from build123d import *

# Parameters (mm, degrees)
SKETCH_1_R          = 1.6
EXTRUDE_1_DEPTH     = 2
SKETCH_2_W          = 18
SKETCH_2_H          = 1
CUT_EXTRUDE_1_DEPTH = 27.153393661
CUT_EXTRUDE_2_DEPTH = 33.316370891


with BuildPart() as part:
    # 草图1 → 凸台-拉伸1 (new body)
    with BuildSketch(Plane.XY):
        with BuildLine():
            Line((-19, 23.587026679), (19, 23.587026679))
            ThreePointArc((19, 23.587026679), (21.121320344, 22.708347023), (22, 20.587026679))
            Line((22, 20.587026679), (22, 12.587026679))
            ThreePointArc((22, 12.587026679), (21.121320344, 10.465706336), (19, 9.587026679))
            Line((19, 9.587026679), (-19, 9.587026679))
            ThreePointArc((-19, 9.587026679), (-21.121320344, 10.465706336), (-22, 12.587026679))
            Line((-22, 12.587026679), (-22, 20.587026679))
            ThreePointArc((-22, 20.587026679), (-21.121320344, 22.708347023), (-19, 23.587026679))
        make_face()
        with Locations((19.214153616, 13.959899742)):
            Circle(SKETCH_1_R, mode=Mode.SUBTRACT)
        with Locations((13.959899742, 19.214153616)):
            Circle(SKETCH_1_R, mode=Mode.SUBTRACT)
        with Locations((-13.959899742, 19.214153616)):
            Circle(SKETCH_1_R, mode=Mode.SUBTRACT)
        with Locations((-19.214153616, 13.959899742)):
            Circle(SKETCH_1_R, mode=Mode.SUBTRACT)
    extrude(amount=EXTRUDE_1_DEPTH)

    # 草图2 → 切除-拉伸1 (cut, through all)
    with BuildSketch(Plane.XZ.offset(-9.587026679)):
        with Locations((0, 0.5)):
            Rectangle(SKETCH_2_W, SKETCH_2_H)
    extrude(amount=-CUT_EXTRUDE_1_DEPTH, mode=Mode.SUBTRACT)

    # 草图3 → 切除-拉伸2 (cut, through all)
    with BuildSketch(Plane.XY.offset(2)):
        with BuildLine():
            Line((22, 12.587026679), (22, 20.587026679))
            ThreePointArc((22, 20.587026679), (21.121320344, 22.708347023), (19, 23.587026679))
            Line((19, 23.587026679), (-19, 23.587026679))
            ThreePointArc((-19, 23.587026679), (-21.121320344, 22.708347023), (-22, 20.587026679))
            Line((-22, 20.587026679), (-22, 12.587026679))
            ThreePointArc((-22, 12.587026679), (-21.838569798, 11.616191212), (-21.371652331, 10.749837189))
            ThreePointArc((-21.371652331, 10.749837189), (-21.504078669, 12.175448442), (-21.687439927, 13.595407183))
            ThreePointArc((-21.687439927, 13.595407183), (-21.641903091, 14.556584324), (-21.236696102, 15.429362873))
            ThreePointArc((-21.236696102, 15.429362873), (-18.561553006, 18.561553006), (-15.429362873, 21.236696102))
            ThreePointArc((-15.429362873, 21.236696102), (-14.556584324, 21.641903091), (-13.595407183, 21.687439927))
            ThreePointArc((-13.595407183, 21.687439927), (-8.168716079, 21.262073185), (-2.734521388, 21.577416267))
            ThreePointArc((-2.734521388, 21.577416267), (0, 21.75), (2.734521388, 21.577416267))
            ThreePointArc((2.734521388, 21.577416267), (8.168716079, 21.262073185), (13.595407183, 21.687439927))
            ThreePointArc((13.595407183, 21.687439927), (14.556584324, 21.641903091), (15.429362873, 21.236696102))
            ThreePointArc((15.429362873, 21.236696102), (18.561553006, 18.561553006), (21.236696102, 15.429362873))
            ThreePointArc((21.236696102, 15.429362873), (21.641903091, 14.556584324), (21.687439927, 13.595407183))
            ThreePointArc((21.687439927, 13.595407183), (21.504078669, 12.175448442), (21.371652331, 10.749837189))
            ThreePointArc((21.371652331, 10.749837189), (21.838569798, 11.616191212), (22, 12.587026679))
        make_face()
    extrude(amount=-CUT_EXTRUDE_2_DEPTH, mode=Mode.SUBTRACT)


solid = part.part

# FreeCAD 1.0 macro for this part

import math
import FreeCAD as App
import Part
import Sketcher
from FreeCAD import Vector

doc = App.newDocument("Part")
body = doc.addObject("PartDesign::Body", "Body")

# Sketch on XY plane
sketch1 = body.newObject("Sketcher::SketchObject", "Sketch")
sketch1.AttachmentSupport = (doc.getObject("XY_Plane"), [""])
sketch1.MapMode = "FlatFace"
sketch1.addGeometry(Part.LineSegment(Vector(19, 23.6, 0), Vector(-19, 23.6, 0)), False)
sketch1.addGeometry(Part.ArcOfCircle(Part.Circle(Vector(-19, 20.6, 0), Vector(0, 0, 1), 3), math.radians(90), math.radians(180)), False)
sketch1.addGeometry(Part.LineSegment(Vector(-22, 20.6, 0), Vector(-22, 12.6, 0)), False)
sketch1.addGeometry(Part.ArcOfCircle(Part.Circle(Vector(-19, 12.6, 0), Vector(0, 0, 1), 3), math.radians(180), math.radians(270)), False)
sketch1.addGeometry(Part.LineSegment(Vector(-19, 9.6, 0), Vector(19, 9.6, 0)), False)
sketch1.addGeometry(Part.ArcOfCircle(Part.Circle(Vector(19, 12.6, 0), Vector(0, 0, 1), 3), math.radians(-90), math.radians(0)), False)
sketch1.addGeometry(Part.LineSegment(Vector(22, 12.6, 0), Vector(22, 20.6, 0)), False)
sketch1.addGeometry(Part.ArcOfCircle(Part.Circle(Vector(19, 20.6, 0), Vector(0, 0, 1), 3), math.radians(0), math.radians(90)), False)
sketch1.addGeometry(Part.Circle(Vector(19.2, 14, 0), Vector(0, 0, 1), 1.6), False)
sketch1.addGeometry(Part.Circle(Vector(-19.2, 14, 0), Vector(0, 0, 1), 1.6), False)
sketch1.addGeometry(Part.Circle(Vector(14, 19.2, 0), Vector(0, 0, 1), 1.6), False)
sketch1.addGeometry(Part.Circle(Vector(-14, 19.2, 0), Vector(0, 0, 1), 1.6), False)
sketch1.addConstraint(Sketcher.Constraint("Tangent", 0, 2, 1, 1))
sketch1.addConstraint(Sketcher.Constraint("Tangent", 1, 2, 2, 1))
sketch1.addConstraint(Sketcher.Constraint("Tangent", 2, 2, 3, 1))
sketch1.addConstraint(Sketcher.Constraint("Tangent", 3, 2, 4, 1))
sketch1.addConstraint(Sketcher.Constraint("Tangent", 4, 2, 5, 1))
sketch1.addConstraint(Sketcher.Constraint("Tangent", 5, 2, 6, 1))
sketch1.addConstraint(Sketcher.Constraint("Tangent", 6, 2, 7, 1))
sketch1.addConstraint(Sketcher.Constraint("Tangent", 7, 2, 0, 1))
sketch1.addConstraint(Sketcher.Constraint("Horizontal", 0))
sketch1.addConstraint(Sketcher.Constraint("Vertical", 2))
sketch1.addConstraint(Sketcher.Constraint("Horizontal", 4))
sketch1.addConstraint(Sketcher.Constraint("Vertical", 6))
sketch1.addConstraint(Sketcher.Constraint("Equal", 1, 3))
sketch1.addConstraint(Sketcher.Constraint("Equal", 3, 5))
sketch1.addConstraint(Sketcher.Constraint("Equal", 5, 7))
sketch1.addConstraint(Sketcher.Constraint("Equal", 8, 9))
sketch1.addConstraint(Sketcher.Constraint("Equal", 9, 10))
sketch1.addConstraint(Sketcher.Constraint("Equal", 10, 11))
sketch1.addConstraint(Sketcher.Constraint("Symmetric", 8, 3, 9, 3, -2))
sketch1.addConstraint(Sketcher.Constraint("Symmetric", 10, 3, 11, 3, -2))
sketch1.addConstraint(Sketcher.Constraint("Radius", 1, 3.0))
sketch1.addConstraint(Sketcher.Constraint("Diameter", 8, 3.2))
sketch1.addConstraint(Sketcher.Constraint("DistanceX", 0, 2, 0, 1, 38.0))
sketch1.addConstraint(Sketcher.Constraint("DistanceY", 2, 2, 2, 1, 8.0))
sketch1.addConstraint(Sketcher.Constraint("DistanceX", 1, 3, -1, 1, 19.0))
sketch1.addConstraint(Sketcher.Constraint("DistanceY", -1, 1, 8, 3, 13.9599))
sketch1.addConstraint(Sketcher.Constraint("DistanceX", -1, 1, 10, 3, 13.9599))
sketch1.addConstraint(Sketcher.Constraint("DistanceY", -1, 1, 1, 3, 20.587027))
sketch1.addConstraint(Sketcher.Constraint("DistanceX", -1, 1, 8, 3, 19.214154))
sketch1.addConstraint(Sketcher.Constraint("DistanceY", -1, 1, 10, 3, 19.214154))
pad1 = body.newObject("PartDesign::Pad", "Pad")
pad1.Profile = sketch1
pad1.Length = 2

# Sketch on XZ plane
sketch2 = body.newObject("Sketcher::SketchObject", "Sketch001")
sketch2.AttachmentSupport = (doc.getObject("XZ_Plane"), [""])
sketch2.MapMode = "FlatFace"
sketch2.AttachmentOffset = App.Placement(Vector(0, 0, -9.587027), App.Rotation())
sketch2.addGeometry(Part.LineSegment(Vector(-9, 1, 0), Vector(-9, 0, 0)), False)
sketch2.addGeometry(Part.LineSegment(Vector(-9, 0, 0), Vector(9, 0, 0)), False)
sketch2.addGeometry(Part.LineSegment(Vector(9, 0, 0), Vector(9, 1, 0)), False)
sketch2.addGeometry(Part.LineSegment(Vector(9, 1, 0), Vector(-9, 1, 0)), False)
sketch2.addConstraint(Sketcher.Constraint("Coincident", 0, 2, 1, 1))
sketch2.addConstraint(Sketcher.Constraint("Coincident", 1, 2, 2, 1))
sketch2.addConstraint(Sketcher.Constraint("Coincident", 2, 2, 3, 1))
sketch2.addConstraint(Sketcher.Constraint("Coincident", 3, 2, 0, 1))
sketch2.addConstraint(Sketcher.Constraint("Vertical", 0))
sketch2.addConstraint(Sketcher.Constraint("Horizontal", 1))
sketch2.addConstraint(Sketcher.Constraint("Vertical", 2))
sketch2.addConstraint(Sketcher.Constraint("Horizontal", 3))
sketch2.addConstraint(Sketcher.Constraint("Symmetric", 0, 2, 1, 2, -1, 1))
sketch2.addConstraint(Sketcher.Constraint("DistanceX", 1, 1, 1, 2, 18.0))
sketch2.addConstraint(Sketcher.Constraint("DistanceY", 0, 2, 0, 1, 1.0))
pocket1 = body.newObject("PartDesign::Pocket", "Pocket")
pocket1.Profile = sketch2
pocket1.Type = "ThroughAll"

# Sketch on XY plane
sketch3 = body.newObject("Sketcher::SketchObject", "Sketch002")
sketch3.AttachmentSupport = (doc.getObject("XY_Plane"), [""])
sketch3.MapMode = "FlatFace"
sketch3.AttachmentOffset = App.Placement(Vector(0, 0, 2), App.Rotation())
sketch3.addGeometry(Part.LineSegment(Vector(22, 12.6, 0), Vector(22, 20.6, 0)), False)
sketch3.addGeometry(Part.ArcOfCircle(Part.Circle(Vector(19, 20.6, 0), Vector(0, 0, 1), 3), math.radians(0), math.radians(90)), False)
sketch3.addGeometry(Part.LineSegment(Vector(19, 23.6, 0), Vector(-19, 23.6, 0)), False)
sketch3.addGeometry(Part.ArcOfCircle(Part.Circle(Vector(-19, 20.6, 0), Vector(0, 0, 1), 3), math.radians(90), math.radians(180)), False)
sketch3.addGeometry(Part.LineSegment(Vector(-22, 20.6, 0), Vector(-22, 12.6, 0)), False)
sketch3.addGeometry(Part.ArcOfCircle(Part.Circle(Vector(-19, 12.6, 0), Vector(0, 0, 1), 3), math.radians(180), math.radians(218)), False)
sketch3.addGeometry(Part.ArcOfCircle(Part.Circle(Vector(-61.3, 7.8, 0), Vector(0, 0, 1), 40), math.radians(4.28), math.radians(8.38)), False)
sketch3.addGeometry(Part.ArcOfCircle(Part.Circle(Vector(-19.2, 14, 0), Vector(0, 0, 1), 2.5), math.radians(144), math.radians(188)), False)
sketch3.addGeometry(Part.ArcOfCircle(Part.Circle(Vector(0, 0, 0), Vector(0, 0, 1), 26.3), math.radians(126), math.radians(144)), False)
sketch3.addGeometry(Part.ArcOfCircle(Part.Circle(Vector(-14, 19.2, 0), Vector(0, 0, 1), 2.5), math.radians(82), math.radians(126)), False)
sketch3.addGeometry(Part.ArcOfCircle(Part.Circle(Vector(-7.8, 61.3, 0), Vector(0, 0, 1), 40), math.radians(-98.38), math.radians(-82.78)), False)
sketch3.addGeometry(Part.ArcOfCircle(Part.Circle(Vector(0, 0, 0), Vector(0, 0, 1), 21.7), math.radians(82.78), math.radians(97.22)), False)
sketch3.addGeometry(Part.ArcOfCircle(Part.Circle(Vector(7.8, 61.3, 0), Vector(0, 0, 1), 40), math.radians(-97.22), math.radians(-81.62)), False)
sketch3.addGeometry(Part.ArcOfCircle(Part.Circle(Vector(14, 19.2, 0), Vector(0, 0, 1), 2.5), math.radians(54), math.radians(98)), False)
sketch3.addGeometry(Part.ArcOfCircle(Part.Circle(Vector(0, 0, 0), Vector(0, 0, 1), 26.3), math.radians(36), math.radians(54)), False)
sketch3.addGeometry(Part.ArcOfCircle(Part.Circle(Vector(19.2, 14, 0), Vector(0, 0, 1), 2.5), math.radians(-8), math.radians(36)), False)
sketch3.addGeometry(Part.ArcOfCircle(Part.Circle(Vector(61.3, 7.8, 0), Vector(0, 0, 1), 40), math.radians(171.62), math.radians(175.72)), False)
sketch3.addGeometry(Part.ArcOfCircle(Part.Circle(Vector(19, 12.6, 0), Vector(0, 0, 1), 3), math.radians(-38), math.radians(0)), False)
sketch3.addConstraint(Sketcher.Constraint("Tangent", 0, 2, 1, 1))
sketch3.addConstraint(Sketcher.Constraint("Tangent", 1, 2, 2, 1))
sketch3.addConstraint(Sketcher.Constraint("Tangent", 2, 2, 3, 1))
sketch3.addConstraint(Sketcher.Constraint("Tangent", 3, 2, 4, 1))
sketch3.addConstraint(Sketcher.Constraint("Tangent", 4, 2, 5, 1))
sketch3.addConstraint(Sketcher.Constraint("Coincident", 5, 2, 6, 1))
sketch3.addConstraint(Sketcher.Constraint("Tangent", 6, 2, 7, 2))
sketch3.addConstraint(Sketcher.Constraint("Tangent", 7, 1, 8, 2))
sketch3.addConstraint(Sketcher.Constraint("Tangent", 8, 1, 9, 2))
sketch3.addConstraint(Sketcher.Constraint("Tangent", 9, 1, 10, 1))
sketch3.addConstraint(Sketcher.Constraint("Tangent", 10, 2, 11, 2))
sketch3.addConstraint(Sketcher.Constraint("Tangent", 11, 1, 12, 1))
sketch3.addConstraint(Sketcher.Constraint("Tangent", 12, 2, 13, 2))
sketch3.addConstraint(Sketcher.Constraint("Tangent", 13, 1, 14, 2))
sketch3.addConstraint(Sketcher.Constraint("Tangent", 14, 1, 15, 2))
sketch3.addConstraint(Sketcher.Constraint("Tangent", 15, 1, 16, 1))
sketch3.addConstraint(Sketcher.Constraint("Coincident", 16, 2, 17, 1))
sketch3.addConstraint(Sketcher.Constraint("Tangent", 17, 2, 0, 1))
sketch3.addConstraint(Sketcher.Constraint("Vertical", 0))
sketch3.addConstraint(Sketcher.Constraint("Horizontal", 2))
sketch3.addConstraint(Sketcher.Constraint("Vertical", 4))
sketch3.addConstraint(Sketcher.Constraint("Coincident", 8, 3, -1, 1))
sketch3.addConstraint(Sketcher.Constraint("Coincident", 11, 3, -1, 1))
sketch3.addConstraint(Sketcher.Constraint("Coincident", 14, 3, -1, 1))
sketch3.addConstraint(Sketcher.Constraint("Equal", 1, 3))
sketch3.addConstraint(Sketcher.Constraint("Equal", 3, 5))
sketch3.addConstraint(Sketcher.Constraint("Equal", 7, 9))
sketch3.addConstraint(Sketcher.Constraint("Equal", 6, 10))
sketch3.addConstraint(Sketcher.Constraint("Equal", 10, 12))
sketch3.addConstraint(Sketcher.Constraint("Equal", 9, 13))
sketch3.addConstraint(Sketcher.Constraint("Equal", 8, 14))
sketch3.addConstraint(Sketcher.Constraint("Equal", 13, 15))
sketch3.addConstraint(Sketcher.Constraint("Equal", 12, 16))
sketch3.addConstraint(Sketcher.Constraint("Equal", 5, 17))
sketch3.addConstraint(Sketcher.Constraint("Symmetric", 6, 3, 16, 3, -2))
sketch3.addConstraint(Sketcher.Constraint("Symmetric", 5, 3, 17, 3, -2))
sketch3.addConstraint(Sketcher.Constraint("Horizontal", 10, 3, 12, 3))
sketch3.addConstraint(Sketcher.Constraint("Radius", 1, 3.0))
sketch3.addConstraint(Sketcher.Constraint("Radius", 6, 40.0))
sketch3.addConstraint(Sketcher.Constraint("Radius", 7, 2.5))
sketch3.addConstraint(Sketcher.Constraint("DistanceX", 2, 2, 2, 1, 38.0))
sketch3.addConstraint(Sketcher.Constraint("DistanceY", 0, 1, 0, 2, 8.0))
sketch3.addConstraint(Sketcher.Constraint("Radius", 8, 26.25))
sketch3.addConstraint(Sketcher.Constraint("Radius", 11, 21.75))
sketch3.addConstraint(Sketcher.Constraint("DistanceY", -1, 1, 7, 3, 13.9599))
sketch3.addConstraint(Sketcher.Constraint("DistanceX", 9, 3, -1, 1, 13.9599))
sketch3.addConstraint(Sketcher.Constraint("DistanceY", 6, 3, 5, 3, 4.8235))
sketch3.addConstraint(Sketcher.Constraint("DistanceX", 5, 2, 7, 3, 2.157499))
pocket2 = body.newObject("PartDesign::Pocket", "Pocket001")
pocket2.Profile = sketch3
pocket2.Type = "ThroughAll"

doc.recompute()
